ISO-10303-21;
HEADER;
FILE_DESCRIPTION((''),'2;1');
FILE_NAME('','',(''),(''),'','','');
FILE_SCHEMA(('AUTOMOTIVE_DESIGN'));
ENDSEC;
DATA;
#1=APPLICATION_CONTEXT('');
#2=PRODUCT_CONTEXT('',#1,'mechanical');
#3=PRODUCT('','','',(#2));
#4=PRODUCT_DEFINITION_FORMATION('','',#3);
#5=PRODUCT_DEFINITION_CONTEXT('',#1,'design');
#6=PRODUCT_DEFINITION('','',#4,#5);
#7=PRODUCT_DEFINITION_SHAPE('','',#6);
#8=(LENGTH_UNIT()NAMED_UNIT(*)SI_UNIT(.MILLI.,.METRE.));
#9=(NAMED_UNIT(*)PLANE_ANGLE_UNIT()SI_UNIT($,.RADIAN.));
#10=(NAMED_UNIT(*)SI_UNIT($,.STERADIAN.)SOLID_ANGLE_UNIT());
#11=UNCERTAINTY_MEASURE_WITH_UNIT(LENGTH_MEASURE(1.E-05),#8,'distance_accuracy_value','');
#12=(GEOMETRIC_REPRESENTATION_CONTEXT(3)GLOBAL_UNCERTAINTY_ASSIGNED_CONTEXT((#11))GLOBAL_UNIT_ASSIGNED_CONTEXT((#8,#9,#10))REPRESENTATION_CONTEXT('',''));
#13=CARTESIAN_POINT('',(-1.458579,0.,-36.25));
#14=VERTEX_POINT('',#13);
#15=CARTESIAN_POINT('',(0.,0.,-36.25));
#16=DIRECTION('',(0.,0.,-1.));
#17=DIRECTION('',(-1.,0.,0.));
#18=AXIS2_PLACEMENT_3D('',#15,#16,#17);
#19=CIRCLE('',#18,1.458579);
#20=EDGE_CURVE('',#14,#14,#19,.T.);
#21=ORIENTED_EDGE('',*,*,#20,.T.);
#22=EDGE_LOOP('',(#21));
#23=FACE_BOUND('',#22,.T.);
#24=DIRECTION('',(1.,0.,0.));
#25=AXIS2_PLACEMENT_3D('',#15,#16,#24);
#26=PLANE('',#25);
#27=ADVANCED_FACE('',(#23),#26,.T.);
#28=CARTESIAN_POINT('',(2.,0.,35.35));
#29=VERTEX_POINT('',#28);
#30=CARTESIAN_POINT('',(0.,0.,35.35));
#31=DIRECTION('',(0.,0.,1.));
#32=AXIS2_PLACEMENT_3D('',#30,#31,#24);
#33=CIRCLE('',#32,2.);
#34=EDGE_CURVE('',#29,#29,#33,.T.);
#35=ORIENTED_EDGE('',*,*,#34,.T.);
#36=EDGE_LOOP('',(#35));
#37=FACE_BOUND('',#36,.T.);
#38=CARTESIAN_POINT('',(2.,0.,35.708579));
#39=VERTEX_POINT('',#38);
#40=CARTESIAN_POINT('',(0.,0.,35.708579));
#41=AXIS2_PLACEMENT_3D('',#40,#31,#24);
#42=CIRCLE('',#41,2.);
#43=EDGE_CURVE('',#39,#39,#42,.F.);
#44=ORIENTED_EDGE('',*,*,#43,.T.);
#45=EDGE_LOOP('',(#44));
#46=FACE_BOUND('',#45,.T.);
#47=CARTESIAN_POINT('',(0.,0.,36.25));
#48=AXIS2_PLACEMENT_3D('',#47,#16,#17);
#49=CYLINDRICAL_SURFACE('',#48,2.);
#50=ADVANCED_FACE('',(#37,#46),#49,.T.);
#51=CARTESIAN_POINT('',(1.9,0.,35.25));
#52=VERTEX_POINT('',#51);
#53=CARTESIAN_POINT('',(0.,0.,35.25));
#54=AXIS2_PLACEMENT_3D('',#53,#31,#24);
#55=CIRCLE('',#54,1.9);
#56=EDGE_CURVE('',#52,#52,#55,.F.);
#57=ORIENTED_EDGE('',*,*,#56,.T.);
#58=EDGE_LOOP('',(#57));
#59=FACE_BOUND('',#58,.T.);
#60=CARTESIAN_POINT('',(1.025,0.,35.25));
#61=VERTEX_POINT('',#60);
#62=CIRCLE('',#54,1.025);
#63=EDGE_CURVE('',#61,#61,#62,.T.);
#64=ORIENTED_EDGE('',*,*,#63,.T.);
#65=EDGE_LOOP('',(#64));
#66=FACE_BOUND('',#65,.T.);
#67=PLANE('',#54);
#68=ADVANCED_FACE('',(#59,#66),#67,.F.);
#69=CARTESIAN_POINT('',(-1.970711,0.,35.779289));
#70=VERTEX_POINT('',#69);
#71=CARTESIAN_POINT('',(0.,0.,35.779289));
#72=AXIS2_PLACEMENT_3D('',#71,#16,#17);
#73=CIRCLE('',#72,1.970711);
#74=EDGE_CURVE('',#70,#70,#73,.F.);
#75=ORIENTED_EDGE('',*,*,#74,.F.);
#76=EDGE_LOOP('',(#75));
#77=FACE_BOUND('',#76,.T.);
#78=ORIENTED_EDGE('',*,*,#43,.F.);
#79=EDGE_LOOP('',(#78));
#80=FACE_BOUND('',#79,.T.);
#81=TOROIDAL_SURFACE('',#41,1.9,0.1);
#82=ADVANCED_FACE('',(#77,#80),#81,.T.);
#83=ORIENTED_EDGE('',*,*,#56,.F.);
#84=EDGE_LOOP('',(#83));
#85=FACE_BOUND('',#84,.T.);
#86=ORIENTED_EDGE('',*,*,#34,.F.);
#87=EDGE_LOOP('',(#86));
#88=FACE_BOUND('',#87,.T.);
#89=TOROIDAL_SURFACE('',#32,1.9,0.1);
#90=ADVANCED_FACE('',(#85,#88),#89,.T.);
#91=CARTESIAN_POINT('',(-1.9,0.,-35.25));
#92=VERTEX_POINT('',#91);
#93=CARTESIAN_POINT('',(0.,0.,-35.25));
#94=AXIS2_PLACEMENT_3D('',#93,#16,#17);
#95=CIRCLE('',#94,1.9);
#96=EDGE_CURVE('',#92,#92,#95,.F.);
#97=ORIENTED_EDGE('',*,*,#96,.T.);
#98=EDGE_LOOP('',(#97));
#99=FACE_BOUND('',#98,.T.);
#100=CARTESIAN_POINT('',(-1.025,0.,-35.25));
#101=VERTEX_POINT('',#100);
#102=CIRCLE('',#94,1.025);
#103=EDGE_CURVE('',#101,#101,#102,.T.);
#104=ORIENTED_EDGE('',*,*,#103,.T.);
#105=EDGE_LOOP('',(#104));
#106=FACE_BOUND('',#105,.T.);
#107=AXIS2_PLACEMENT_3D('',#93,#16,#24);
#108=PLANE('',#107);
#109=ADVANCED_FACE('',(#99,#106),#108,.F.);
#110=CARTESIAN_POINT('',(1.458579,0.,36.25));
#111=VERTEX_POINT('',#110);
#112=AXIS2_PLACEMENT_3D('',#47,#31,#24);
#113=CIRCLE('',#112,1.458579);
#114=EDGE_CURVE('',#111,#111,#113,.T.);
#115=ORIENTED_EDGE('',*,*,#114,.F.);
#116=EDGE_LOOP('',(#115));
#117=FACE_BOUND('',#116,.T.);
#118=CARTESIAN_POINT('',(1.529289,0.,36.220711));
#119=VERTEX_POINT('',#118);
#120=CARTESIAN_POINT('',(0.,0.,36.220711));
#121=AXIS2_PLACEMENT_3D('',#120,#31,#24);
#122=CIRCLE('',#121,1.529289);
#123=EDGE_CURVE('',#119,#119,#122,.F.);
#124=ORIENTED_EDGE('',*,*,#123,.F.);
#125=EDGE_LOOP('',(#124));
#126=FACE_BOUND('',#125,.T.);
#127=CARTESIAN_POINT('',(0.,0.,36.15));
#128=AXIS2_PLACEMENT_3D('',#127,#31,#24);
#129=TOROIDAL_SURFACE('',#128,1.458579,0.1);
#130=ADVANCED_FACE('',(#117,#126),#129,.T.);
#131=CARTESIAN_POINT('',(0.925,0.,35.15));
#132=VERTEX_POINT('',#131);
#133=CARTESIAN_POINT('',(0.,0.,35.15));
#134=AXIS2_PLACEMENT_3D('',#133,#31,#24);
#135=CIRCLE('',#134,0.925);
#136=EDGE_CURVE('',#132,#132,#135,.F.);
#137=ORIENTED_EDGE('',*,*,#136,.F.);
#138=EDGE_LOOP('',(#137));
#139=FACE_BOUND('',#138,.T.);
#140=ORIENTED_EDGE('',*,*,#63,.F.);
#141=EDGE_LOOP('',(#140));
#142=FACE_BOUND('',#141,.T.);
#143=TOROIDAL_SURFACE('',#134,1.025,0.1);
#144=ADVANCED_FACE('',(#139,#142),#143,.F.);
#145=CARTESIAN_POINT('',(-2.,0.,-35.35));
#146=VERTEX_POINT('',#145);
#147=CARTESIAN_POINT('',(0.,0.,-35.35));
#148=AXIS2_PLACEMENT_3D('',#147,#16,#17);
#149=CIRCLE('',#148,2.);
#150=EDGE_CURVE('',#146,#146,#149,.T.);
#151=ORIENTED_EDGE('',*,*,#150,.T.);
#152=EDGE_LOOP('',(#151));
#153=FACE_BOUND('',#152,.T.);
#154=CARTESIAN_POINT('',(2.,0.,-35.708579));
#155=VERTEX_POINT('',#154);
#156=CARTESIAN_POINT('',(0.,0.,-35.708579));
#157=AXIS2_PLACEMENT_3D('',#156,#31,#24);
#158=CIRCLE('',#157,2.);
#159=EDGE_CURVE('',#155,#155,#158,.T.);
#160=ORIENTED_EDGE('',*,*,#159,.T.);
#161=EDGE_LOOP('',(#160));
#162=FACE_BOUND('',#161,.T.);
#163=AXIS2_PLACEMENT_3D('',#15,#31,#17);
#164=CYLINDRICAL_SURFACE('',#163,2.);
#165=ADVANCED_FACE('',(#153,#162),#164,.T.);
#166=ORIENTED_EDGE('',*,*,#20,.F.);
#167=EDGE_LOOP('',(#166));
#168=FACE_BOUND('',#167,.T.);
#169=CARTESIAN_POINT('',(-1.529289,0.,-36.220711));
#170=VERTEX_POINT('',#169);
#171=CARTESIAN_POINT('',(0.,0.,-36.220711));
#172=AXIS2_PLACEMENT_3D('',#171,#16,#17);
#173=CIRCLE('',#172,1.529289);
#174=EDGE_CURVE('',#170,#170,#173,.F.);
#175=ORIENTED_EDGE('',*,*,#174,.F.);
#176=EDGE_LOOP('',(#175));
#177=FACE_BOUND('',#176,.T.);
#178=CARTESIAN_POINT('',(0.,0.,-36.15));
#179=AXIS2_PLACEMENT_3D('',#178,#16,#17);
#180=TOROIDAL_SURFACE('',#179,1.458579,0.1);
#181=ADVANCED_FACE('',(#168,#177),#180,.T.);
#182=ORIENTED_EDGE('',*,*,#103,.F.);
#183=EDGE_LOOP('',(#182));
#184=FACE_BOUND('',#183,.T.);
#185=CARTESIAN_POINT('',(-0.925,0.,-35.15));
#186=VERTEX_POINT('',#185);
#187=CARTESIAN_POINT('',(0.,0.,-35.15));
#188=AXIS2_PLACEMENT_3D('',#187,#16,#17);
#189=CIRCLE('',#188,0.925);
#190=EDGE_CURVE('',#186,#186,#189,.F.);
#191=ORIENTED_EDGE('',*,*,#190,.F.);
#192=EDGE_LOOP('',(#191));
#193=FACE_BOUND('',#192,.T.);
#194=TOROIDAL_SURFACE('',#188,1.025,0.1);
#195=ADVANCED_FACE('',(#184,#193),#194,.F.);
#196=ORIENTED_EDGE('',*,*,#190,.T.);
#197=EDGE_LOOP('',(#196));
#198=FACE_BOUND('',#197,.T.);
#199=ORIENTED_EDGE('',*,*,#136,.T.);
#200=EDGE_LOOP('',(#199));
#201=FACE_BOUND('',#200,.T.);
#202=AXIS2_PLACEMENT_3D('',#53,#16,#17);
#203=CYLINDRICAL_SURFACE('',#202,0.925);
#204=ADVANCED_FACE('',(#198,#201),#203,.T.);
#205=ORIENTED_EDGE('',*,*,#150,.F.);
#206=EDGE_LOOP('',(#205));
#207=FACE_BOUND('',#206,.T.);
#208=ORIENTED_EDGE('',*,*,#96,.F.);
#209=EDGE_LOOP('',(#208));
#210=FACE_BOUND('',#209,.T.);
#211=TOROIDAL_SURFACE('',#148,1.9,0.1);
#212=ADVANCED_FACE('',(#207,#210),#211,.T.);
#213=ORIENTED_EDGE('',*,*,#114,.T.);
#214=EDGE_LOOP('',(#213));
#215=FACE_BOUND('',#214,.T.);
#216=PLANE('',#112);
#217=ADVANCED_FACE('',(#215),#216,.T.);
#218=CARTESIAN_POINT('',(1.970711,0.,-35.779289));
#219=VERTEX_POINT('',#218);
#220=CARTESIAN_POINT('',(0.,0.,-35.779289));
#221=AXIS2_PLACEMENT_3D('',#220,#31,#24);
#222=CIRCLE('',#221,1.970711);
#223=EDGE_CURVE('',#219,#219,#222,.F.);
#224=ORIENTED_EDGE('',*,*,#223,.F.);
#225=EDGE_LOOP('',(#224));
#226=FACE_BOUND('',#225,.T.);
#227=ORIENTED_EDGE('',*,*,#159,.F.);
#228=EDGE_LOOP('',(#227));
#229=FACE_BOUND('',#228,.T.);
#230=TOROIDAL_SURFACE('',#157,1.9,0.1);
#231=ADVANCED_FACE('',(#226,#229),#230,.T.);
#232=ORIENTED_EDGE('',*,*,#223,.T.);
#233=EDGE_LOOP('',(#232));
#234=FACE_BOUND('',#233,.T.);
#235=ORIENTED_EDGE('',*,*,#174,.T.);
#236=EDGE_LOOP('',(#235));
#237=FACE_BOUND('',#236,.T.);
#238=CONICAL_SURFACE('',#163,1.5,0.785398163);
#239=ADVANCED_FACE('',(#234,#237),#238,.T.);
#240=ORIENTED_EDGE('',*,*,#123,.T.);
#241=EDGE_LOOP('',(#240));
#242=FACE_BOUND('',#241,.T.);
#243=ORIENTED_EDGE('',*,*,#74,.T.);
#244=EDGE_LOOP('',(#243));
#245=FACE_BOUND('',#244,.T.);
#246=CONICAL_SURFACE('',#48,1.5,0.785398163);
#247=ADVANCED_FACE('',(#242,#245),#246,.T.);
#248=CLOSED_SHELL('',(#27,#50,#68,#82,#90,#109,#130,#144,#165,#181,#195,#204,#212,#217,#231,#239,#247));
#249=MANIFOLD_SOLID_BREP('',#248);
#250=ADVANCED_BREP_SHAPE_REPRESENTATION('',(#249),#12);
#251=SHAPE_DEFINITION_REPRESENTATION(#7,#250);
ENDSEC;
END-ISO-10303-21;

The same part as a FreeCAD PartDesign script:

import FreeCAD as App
import Part
import Sketcher

V = App.Vector


def edges_at(feature, points):
    """Names of the edges that pass closest to the given points."""
    edges = feature.Shape.Edges
    near = lambda p: min(range(len(edges)), key=lambda i: edges[i].distToShape(Part.Vertex(*p))[0])
    return sorted({f"Edge{near(p) + 1}" for p in points})

doc = App.newDocument("Part")
body = doc.addObject("PartDesign::Body", "Body")

sketch1 = body.newObject("Sketcher::SketchObject", "Sketch")
sketch1.AttachmentSupport = (doc.getObject("XY_Plane"), [""])
sketch1.MapMode = "FlatFace"
sketch1.addGeometry(Part.Circle(V(0, 0, 0), V(0, 0, 1), 0.925), False)
sketch1.addConstraint(Sketcher.Constraint("Coincident", 0, 3, -1, 1))
sketch1.addConstraint(Sketcher.Constraint("Diameter", 0, 1.85))
pad1 = body.newObject("PartDesign::Pad", "Pad")
pad1.Profile = sketch1
pad1.Length = 35.25

sketch2 = body.newObject("Sketcher::SketchObject", "Sketch001")
sketch2.AttachmentSupport = (doc.getObject("XY_Plane"), [""])
sketch2.MapMode = "FlatFace"
sketch2.AttachmentOffset = App.Placement(V(0, 0, 35.25), App.Rotation())
sketch2.addGeometry(Part.Circle(V(0, 0, 0), V(0, 0, 1), 2), False)
sketch2.addConstraint(Sketcher.Constraint("Coincident", 0, 3, -1, 1))
sketch2.addConstraint(Sketcher.Constraint("Diameter", 0, 4.0))
pad2 = body.newObject("PartDesign::Pad", "Pad001")
pad2.Profile = sketch2
pad2.Length = 1
doc.recompute()

chamfer = body.newObject("PartDesign::Chamfer", "Chamfer")
chamfer.Base = (pad2, edges_at(pad2, [(-2, 0, 36.25)]))
chamfer.Size = 0.5
body2 = doc.addObject("PartDesign::Body", "Body001")
doc.recompute()

body2.BaseFeature = body
doc.recompute()

mirroring = doc.addObject("Part::Mirroring", "Mirroring")
mirroring.Source = body
mirroring.Base = V(0, 0, 0)
mirroring.Normal = V(0, 0, 1)
body3 = doc.addObject("PartDesign::Body", "Body002")
body3.BaseFeature = mirroring
boolean = body2.newObject("PartDesign::Boolean", "Boolean")
boolean.Type = "Fuse"
boolean.addObjects([body3])
doc.recompute()

fillet = body2.newObject("PartDesign::Fillet", "Fillet")
fillet.Base = (boolean, edges_at(boolean, [
    (-2, 0, 35.75),
    (-0.925, 0, -35.25),
    (-2, 0, -35.25),
    (-2, 0, -35.75),
    (-1.5, 0, -36.25),
    (-0.925, 0, 35.25),
    (-2, 0, 35.25),
    (-1.5, 0, 36.25),
]))
fillet.Radius = 0.1
mirroring.Visibility = False

doc.recompute()
